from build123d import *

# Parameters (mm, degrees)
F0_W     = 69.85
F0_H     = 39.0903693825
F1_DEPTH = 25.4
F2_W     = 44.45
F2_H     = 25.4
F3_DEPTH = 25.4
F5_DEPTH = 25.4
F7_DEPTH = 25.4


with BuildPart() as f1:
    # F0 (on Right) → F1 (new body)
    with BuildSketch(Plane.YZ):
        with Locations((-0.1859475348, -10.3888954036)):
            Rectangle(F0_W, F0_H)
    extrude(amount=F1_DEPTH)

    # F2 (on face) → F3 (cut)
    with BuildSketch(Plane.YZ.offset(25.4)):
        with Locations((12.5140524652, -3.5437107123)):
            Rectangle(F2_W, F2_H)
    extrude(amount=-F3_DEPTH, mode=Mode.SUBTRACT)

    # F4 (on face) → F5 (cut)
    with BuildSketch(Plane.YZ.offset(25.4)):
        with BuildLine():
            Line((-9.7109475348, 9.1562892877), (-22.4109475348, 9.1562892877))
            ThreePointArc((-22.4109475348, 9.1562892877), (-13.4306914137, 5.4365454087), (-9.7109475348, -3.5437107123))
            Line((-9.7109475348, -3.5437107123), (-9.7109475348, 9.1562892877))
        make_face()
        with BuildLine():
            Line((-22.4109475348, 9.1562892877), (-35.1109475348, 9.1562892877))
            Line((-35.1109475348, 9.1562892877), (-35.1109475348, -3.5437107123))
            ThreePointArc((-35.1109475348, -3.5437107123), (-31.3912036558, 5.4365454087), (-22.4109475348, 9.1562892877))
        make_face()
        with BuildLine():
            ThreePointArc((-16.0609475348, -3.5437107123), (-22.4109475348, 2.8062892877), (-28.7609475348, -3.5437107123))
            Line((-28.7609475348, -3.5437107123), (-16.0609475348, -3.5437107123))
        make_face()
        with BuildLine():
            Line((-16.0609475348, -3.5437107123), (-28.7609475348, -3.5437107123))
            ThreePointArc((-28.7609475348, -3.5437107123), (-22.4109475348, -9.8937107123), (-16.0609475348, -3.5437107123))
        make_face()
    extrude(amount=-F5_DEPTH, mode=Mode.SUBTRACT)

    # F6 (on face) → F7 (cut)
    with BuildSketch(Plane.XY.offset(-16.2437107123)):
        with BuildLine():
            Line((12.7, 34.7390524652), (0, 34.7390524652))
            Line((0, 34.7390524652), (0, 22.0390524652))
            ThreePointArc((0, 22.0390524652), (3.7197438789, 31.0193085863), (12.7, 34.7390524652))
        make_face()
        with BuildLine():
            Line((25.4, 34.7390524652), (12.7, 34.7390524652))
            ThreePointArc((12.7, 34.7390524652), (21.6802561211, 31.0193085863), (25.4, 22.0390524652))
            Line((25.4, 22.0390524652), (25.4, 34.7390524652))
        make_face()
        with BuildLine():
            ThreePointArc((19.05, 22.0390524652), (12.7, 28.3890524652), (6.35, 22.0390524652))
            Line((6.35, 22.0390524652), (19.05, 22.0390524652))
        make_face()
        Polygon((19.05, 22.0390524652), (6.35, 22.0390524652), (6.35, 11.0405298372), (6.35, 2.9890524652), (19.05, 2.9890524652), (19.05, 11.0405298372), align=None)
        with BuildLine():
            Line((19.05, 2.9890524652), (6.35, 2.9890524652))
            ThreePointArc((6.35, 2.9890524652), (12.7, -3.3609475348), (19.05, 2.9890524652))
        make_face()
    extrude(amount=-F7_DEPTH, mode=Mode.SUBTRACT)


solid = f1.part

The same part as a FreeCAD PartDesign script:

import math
import FreeCAD as App
import Part
import Sketcher
from FreeCAD import Vector
Q = App.Units.Quantity


def add_polygon(sketch, points):
    """Adds a closed chain of lines whose ends are joined by coincident constraints."""
    first, n = sketch.GeometryCount, len(points)
    for a, b in zip(points, points[1:] + points[:1]):
        sketch.addGeometry(Part.LineSegment(App.Vector(*a, 0), App.Vector(*b, 0)), False)
    for i in range(n):
        sketch.addConstraint(Sketcher.Constraint("Coincident", first + i, 2, first + (i + 1) % n, 1))

doc = App.newDocument("Part")
body = doc.addObject("PartDesign::Body", "Body")

# Sketch on YZ plane
sketch1 = body.newObject("Sketcher::SketchObject", "Sketch")
sketch1.AttachmentSupport = (doc.getObject("YZ_Plane"), [""])
sketch1.MapMode = "FlatFace"
add_polygon(sketch1, [(-35.110948, 9.156289), (-35.110948, -29.93408), (34.739052, -29.93408), (34.739052, 9.156289)])  # lines 0-3
sketch1.addConstraint([
    Sketcher.Constraint("Vertical", 0),
    Sketcher.Constraint("Horizontal", 1),
    Sketcher.Constraint("Vertical", 2),
    Sketcher.Constraint("Horizontal", 3),
    Sketcher.Constraint("DistanceX", 1, 1, 1, 2, Q("2.75 in")),
    Sketcher.Constraint("DistanceY", 0, 2, 0, 1, 39.090369),
    Sketcher.Constraint("DistanceY", 0, 2, -1, 1, 29.93408),
    Sketcher.Constraint("DistanceX", 0, 2, -1, 1, 35.110948),
])
pad1 = body.newObject("PartDesign::Pad", "Pad")
pad1.Profile = sketch1
pad1.Length = Q("1 in")

# Sketch on YZ plane
sketch2 = body.newObject("Sketcher::SketchObject", "Sketch001")
sketch2.AttachmentSupport = (doc.getObject("YZ_Plane"), [""])
sketch2.MapMode = "FlatFace"
sketch2.AttachmentOffset = App.Placement(Vector(0, 0, 1 * 25.4), App.Rotation())
add_polygon(sketch2, [(-9.710948, 9.156289), (-9.710948, -16.243711), (34.739052, -16.243711), (34.739052, 9.156289)])  # lines 0-3
sketch2.addConstraint([
    Sketcher.Constraint("Vertical", 0),
    Sketcher.Constraint("Horizontal", 1),
    Sketcher.Constraint("Vertical", 2),
    Sketcher.Constraint("Horizontal", 3),
    Sketcher.Constraint("DistanceY", 0, 2, 0, 1, Q("1 in")),
    Sketcher.Constraint("DistanceX", 1, 1, 1, 2, Q("1.75 in")),
    Sketcher.Constraint("DistanceY", 0, 2, -1, 1, 16.243711),
    Sketcher.Constraint("DistanceX", 0, 2, -1, 1, 9.710948),
])
pocket1 = body.newObject("PartDesign::Pocket", "Pocket")
pocket1.Profile = sketch2
pocket1.Length = Q("1 in")

# Sketch on YZ plane
sketch3 = body.newObject("Sketcher::SketchObject", "Sketch002")
sketch3.AttachmentSupport = (doc.getObject("YZ_Plane"), [""])
sketch3.MapMode = "FlatFace"
sketch3.AttachmentOffset = App.Placement(Vector(0, 0, 1 * 25.4), App.Rotation())
sketch3.addGeometry([
    Part.LineSegment(Vector(-9.710948, 9.156289, 0), Vector(-22.410948, 9.156289, 0)),  # 0
    Part.ArcOfCircle(Part.Circle(Vector(-22.410948, -3.543711, 0), Vector(0, 0, 1), 12.7), math.radians(0), math.radians(90)),  # 1
    Part.LineSegment(Vector(-9.710948, -3.543711, 0), Vector(-9.710948, 9.156289, 0)),  # 2
    Part.LineSegment(Vector(-22.410948, 9.156289, 0), Vector(-35.110948, 9.156289, 0)),  # 3
    Part.LineSegment(Vector(-35.110948, 9.156289, 0), Vector(-35.110948, -3.543711, 0)),  # 4
    Part.ArcOfCircle(Part.Circle(Vector(-22.410948, -3.543711, 0), Vector(0, 0, 1), 12.7), math.radians(90), math.radians(180)),  # 5
    Part.Circle(Vector(-22.410948, -3.543711, 0), Vector(0, 0, 1), 6.35),  # 6
], False)
sketch3.addConstraint([
    Sketcher.Constraint("Tangent", 0, 2, 1, 2),
    Sketcher.Constraint("Tangent", 1, 1, 2, 1),
    Sketcher.Constraint("Coincident", 2, 2, 0, 1),
    Sketcher.Constraint("Coincident", 3, 2, 4, 1),
    Sketcher.Constraint("Tangent", 4, 2, 5, 2),
    Sketcher.Constraint("Tangent", 5, 1, 3, 1),
    Sketcher.Constraint("Horizontal", 0),
    Sketcher.Constraint("Vertical", 2),
    Sketcher.Constraint("Horizontal", 3),
    Sketcher.Constraint("Vertical", 4),
    Sketcher.Constraint("Coincident", 5, 3, 1, 3),
    Sketcher.Constraint("Coincident", 6, 3, 1, 3),
    Sketcher.Constraint("Equal", 1, 5),
    Sketcher.Constraint("Diameter", 6, Q("0.5 in")),
    Sketcher.Constraint("Radius", 1, Q("0.5 in")),
    Sketcher.Constraint("DistanceY", 1, 3, -1, 1, 3.543711),
    Sketcher.Constraint("DistanceX", 1, 3, -1, 1, 22.410948),
])
pocket2 = body.newObject("PartDesign::Pocket", "Pocket001")
pocket2.Profile = sketch3
pocket2.Length = Q("1 in")

# Sketch on XY plane
sketch4 = body.newObject("Sketcher::SketchObject", "Sketch003")
sketch4.AttachmentSupport = (doc.getObject("XY_Plane"), [""])
sketch4.MapMode = "FlatFace"
sketch4.AttachmentOffset = App.Placement(Vector(0, 0, -16.243711), App.Rotation())
sketch4.addGeometry([
    Part.LineSegment(Vector(12.7, 34.739052, 0), Vector(0, 34.739052, 0)),  # 0
    Part.LineSegment(Vector(0, 34.739052, 0), Vector(0, 22.039052, 0)),  # 1
    Part.ArcOfCircle(Part.Circle(Vector(12.7, 22.039052, 0), Vector(0, 0, 1), 12.7), math.radians(90), math.radians(180)),  # 2
    Part.LineSegment(Vector(25.4, 34.739052, 0), Vector(12.7, 34.739052, 0)),  # 3
    Part.ArcOfCircle(Part.Circle(Vector(12.7, 22.039052, 0), Vector(0, 0, 1), 12.7), math.radians(0), math.radians(90)),  # 4
    Part.LineSegment(Vector(25.4, 22.039052, 0), Vector(25.4, 34.739052, 0)),  # 5
    Part.ArcOfCircle(Part.Circle(Vector(12.7, 22.039052, 0), Vector(0, 0, 1), 6.35), math.radians(0), math.radians(180)),  # 6
    Part.LineSegment(Vector(6.35, 22.039052, 0), Vector(6.35, 2.989052, 0)),  # 7
    Part.ArcOfCircle(Part.Circle(Vector(12.7, 2.989052, 0), Vector(0, 0, 1), 6.35), math.radians(180), math.radians(360)),  # 8
    Part.LineSegment(Vector(19.05, 2.989052, 0), Vector(19.05, 22.039052, 0)),  # 9
], False)
sketch4.addConstraint([
    Sketcher.Constraint("Coincident", 0, 2, 1, 1),
    Sketcher.Constraint("Tangent", 1, 2, 2, 2),
    Sketcher.Constraint("Tangent", 2, 1, 0, 1),
    Sketcher.Constraint("Tangent", 3, 2, 4, 2),
    Sketcher.Constraint("Tangent", 4, 1, 5, 1),
    Sketcher.Constraint("Coincident", 5, 2, 3, 1),
    Sketcher.Constraint("Tangent", 6, 2, 7, 1),
    Sketcher.Constraint("Tangent", 7, 2, 8, 1),
    Sketcher.Constraint("Tangent", 8, 2, 9, 1),
    Sketcher.Constraint("Tangent", 9, 2, 6, 1),
    Sketcher.Constraint("Horizontal", 0),
    Sketcher.Constraint("Vertical", 1),
    Sketcher.Constraint("Horizontal", 3),
    Sketcher.Constraint("Vertical", 5),
    Sketcher.Constraint("Vertical", 7),
    Sketcher.Constraint("Vertical", 9),
    Sketcher.Constraint("Coincident", 4, 3, 2, 3),
    Sketcher.Constraint("Coincident", 6, 3, 2, 3),
    Sketcher.Constraint("Equal", 2, 4),
    Sketcher.Constraint("PointOnObject", 0, 2, -2),
    Sketcher.Constraint("Radius", 2, Q("0.5 in")),
    Sketcher.Constraint("Radius", 6, Q("0.25 in")),
    Sketcher.Constraint("DistanceY", 7, 2, 7, 1, Q("0.75 in")),
    Sketcher.Constraint("DistanceY", -1, 1, 2, 3, 22.039052),
])
pocket3 = body.newObject("PartDesign::Pocket", "Pocket002")
pocket3.Profile = sketch4
pocket3.Length = Q("1 in")

doc.recompute()
